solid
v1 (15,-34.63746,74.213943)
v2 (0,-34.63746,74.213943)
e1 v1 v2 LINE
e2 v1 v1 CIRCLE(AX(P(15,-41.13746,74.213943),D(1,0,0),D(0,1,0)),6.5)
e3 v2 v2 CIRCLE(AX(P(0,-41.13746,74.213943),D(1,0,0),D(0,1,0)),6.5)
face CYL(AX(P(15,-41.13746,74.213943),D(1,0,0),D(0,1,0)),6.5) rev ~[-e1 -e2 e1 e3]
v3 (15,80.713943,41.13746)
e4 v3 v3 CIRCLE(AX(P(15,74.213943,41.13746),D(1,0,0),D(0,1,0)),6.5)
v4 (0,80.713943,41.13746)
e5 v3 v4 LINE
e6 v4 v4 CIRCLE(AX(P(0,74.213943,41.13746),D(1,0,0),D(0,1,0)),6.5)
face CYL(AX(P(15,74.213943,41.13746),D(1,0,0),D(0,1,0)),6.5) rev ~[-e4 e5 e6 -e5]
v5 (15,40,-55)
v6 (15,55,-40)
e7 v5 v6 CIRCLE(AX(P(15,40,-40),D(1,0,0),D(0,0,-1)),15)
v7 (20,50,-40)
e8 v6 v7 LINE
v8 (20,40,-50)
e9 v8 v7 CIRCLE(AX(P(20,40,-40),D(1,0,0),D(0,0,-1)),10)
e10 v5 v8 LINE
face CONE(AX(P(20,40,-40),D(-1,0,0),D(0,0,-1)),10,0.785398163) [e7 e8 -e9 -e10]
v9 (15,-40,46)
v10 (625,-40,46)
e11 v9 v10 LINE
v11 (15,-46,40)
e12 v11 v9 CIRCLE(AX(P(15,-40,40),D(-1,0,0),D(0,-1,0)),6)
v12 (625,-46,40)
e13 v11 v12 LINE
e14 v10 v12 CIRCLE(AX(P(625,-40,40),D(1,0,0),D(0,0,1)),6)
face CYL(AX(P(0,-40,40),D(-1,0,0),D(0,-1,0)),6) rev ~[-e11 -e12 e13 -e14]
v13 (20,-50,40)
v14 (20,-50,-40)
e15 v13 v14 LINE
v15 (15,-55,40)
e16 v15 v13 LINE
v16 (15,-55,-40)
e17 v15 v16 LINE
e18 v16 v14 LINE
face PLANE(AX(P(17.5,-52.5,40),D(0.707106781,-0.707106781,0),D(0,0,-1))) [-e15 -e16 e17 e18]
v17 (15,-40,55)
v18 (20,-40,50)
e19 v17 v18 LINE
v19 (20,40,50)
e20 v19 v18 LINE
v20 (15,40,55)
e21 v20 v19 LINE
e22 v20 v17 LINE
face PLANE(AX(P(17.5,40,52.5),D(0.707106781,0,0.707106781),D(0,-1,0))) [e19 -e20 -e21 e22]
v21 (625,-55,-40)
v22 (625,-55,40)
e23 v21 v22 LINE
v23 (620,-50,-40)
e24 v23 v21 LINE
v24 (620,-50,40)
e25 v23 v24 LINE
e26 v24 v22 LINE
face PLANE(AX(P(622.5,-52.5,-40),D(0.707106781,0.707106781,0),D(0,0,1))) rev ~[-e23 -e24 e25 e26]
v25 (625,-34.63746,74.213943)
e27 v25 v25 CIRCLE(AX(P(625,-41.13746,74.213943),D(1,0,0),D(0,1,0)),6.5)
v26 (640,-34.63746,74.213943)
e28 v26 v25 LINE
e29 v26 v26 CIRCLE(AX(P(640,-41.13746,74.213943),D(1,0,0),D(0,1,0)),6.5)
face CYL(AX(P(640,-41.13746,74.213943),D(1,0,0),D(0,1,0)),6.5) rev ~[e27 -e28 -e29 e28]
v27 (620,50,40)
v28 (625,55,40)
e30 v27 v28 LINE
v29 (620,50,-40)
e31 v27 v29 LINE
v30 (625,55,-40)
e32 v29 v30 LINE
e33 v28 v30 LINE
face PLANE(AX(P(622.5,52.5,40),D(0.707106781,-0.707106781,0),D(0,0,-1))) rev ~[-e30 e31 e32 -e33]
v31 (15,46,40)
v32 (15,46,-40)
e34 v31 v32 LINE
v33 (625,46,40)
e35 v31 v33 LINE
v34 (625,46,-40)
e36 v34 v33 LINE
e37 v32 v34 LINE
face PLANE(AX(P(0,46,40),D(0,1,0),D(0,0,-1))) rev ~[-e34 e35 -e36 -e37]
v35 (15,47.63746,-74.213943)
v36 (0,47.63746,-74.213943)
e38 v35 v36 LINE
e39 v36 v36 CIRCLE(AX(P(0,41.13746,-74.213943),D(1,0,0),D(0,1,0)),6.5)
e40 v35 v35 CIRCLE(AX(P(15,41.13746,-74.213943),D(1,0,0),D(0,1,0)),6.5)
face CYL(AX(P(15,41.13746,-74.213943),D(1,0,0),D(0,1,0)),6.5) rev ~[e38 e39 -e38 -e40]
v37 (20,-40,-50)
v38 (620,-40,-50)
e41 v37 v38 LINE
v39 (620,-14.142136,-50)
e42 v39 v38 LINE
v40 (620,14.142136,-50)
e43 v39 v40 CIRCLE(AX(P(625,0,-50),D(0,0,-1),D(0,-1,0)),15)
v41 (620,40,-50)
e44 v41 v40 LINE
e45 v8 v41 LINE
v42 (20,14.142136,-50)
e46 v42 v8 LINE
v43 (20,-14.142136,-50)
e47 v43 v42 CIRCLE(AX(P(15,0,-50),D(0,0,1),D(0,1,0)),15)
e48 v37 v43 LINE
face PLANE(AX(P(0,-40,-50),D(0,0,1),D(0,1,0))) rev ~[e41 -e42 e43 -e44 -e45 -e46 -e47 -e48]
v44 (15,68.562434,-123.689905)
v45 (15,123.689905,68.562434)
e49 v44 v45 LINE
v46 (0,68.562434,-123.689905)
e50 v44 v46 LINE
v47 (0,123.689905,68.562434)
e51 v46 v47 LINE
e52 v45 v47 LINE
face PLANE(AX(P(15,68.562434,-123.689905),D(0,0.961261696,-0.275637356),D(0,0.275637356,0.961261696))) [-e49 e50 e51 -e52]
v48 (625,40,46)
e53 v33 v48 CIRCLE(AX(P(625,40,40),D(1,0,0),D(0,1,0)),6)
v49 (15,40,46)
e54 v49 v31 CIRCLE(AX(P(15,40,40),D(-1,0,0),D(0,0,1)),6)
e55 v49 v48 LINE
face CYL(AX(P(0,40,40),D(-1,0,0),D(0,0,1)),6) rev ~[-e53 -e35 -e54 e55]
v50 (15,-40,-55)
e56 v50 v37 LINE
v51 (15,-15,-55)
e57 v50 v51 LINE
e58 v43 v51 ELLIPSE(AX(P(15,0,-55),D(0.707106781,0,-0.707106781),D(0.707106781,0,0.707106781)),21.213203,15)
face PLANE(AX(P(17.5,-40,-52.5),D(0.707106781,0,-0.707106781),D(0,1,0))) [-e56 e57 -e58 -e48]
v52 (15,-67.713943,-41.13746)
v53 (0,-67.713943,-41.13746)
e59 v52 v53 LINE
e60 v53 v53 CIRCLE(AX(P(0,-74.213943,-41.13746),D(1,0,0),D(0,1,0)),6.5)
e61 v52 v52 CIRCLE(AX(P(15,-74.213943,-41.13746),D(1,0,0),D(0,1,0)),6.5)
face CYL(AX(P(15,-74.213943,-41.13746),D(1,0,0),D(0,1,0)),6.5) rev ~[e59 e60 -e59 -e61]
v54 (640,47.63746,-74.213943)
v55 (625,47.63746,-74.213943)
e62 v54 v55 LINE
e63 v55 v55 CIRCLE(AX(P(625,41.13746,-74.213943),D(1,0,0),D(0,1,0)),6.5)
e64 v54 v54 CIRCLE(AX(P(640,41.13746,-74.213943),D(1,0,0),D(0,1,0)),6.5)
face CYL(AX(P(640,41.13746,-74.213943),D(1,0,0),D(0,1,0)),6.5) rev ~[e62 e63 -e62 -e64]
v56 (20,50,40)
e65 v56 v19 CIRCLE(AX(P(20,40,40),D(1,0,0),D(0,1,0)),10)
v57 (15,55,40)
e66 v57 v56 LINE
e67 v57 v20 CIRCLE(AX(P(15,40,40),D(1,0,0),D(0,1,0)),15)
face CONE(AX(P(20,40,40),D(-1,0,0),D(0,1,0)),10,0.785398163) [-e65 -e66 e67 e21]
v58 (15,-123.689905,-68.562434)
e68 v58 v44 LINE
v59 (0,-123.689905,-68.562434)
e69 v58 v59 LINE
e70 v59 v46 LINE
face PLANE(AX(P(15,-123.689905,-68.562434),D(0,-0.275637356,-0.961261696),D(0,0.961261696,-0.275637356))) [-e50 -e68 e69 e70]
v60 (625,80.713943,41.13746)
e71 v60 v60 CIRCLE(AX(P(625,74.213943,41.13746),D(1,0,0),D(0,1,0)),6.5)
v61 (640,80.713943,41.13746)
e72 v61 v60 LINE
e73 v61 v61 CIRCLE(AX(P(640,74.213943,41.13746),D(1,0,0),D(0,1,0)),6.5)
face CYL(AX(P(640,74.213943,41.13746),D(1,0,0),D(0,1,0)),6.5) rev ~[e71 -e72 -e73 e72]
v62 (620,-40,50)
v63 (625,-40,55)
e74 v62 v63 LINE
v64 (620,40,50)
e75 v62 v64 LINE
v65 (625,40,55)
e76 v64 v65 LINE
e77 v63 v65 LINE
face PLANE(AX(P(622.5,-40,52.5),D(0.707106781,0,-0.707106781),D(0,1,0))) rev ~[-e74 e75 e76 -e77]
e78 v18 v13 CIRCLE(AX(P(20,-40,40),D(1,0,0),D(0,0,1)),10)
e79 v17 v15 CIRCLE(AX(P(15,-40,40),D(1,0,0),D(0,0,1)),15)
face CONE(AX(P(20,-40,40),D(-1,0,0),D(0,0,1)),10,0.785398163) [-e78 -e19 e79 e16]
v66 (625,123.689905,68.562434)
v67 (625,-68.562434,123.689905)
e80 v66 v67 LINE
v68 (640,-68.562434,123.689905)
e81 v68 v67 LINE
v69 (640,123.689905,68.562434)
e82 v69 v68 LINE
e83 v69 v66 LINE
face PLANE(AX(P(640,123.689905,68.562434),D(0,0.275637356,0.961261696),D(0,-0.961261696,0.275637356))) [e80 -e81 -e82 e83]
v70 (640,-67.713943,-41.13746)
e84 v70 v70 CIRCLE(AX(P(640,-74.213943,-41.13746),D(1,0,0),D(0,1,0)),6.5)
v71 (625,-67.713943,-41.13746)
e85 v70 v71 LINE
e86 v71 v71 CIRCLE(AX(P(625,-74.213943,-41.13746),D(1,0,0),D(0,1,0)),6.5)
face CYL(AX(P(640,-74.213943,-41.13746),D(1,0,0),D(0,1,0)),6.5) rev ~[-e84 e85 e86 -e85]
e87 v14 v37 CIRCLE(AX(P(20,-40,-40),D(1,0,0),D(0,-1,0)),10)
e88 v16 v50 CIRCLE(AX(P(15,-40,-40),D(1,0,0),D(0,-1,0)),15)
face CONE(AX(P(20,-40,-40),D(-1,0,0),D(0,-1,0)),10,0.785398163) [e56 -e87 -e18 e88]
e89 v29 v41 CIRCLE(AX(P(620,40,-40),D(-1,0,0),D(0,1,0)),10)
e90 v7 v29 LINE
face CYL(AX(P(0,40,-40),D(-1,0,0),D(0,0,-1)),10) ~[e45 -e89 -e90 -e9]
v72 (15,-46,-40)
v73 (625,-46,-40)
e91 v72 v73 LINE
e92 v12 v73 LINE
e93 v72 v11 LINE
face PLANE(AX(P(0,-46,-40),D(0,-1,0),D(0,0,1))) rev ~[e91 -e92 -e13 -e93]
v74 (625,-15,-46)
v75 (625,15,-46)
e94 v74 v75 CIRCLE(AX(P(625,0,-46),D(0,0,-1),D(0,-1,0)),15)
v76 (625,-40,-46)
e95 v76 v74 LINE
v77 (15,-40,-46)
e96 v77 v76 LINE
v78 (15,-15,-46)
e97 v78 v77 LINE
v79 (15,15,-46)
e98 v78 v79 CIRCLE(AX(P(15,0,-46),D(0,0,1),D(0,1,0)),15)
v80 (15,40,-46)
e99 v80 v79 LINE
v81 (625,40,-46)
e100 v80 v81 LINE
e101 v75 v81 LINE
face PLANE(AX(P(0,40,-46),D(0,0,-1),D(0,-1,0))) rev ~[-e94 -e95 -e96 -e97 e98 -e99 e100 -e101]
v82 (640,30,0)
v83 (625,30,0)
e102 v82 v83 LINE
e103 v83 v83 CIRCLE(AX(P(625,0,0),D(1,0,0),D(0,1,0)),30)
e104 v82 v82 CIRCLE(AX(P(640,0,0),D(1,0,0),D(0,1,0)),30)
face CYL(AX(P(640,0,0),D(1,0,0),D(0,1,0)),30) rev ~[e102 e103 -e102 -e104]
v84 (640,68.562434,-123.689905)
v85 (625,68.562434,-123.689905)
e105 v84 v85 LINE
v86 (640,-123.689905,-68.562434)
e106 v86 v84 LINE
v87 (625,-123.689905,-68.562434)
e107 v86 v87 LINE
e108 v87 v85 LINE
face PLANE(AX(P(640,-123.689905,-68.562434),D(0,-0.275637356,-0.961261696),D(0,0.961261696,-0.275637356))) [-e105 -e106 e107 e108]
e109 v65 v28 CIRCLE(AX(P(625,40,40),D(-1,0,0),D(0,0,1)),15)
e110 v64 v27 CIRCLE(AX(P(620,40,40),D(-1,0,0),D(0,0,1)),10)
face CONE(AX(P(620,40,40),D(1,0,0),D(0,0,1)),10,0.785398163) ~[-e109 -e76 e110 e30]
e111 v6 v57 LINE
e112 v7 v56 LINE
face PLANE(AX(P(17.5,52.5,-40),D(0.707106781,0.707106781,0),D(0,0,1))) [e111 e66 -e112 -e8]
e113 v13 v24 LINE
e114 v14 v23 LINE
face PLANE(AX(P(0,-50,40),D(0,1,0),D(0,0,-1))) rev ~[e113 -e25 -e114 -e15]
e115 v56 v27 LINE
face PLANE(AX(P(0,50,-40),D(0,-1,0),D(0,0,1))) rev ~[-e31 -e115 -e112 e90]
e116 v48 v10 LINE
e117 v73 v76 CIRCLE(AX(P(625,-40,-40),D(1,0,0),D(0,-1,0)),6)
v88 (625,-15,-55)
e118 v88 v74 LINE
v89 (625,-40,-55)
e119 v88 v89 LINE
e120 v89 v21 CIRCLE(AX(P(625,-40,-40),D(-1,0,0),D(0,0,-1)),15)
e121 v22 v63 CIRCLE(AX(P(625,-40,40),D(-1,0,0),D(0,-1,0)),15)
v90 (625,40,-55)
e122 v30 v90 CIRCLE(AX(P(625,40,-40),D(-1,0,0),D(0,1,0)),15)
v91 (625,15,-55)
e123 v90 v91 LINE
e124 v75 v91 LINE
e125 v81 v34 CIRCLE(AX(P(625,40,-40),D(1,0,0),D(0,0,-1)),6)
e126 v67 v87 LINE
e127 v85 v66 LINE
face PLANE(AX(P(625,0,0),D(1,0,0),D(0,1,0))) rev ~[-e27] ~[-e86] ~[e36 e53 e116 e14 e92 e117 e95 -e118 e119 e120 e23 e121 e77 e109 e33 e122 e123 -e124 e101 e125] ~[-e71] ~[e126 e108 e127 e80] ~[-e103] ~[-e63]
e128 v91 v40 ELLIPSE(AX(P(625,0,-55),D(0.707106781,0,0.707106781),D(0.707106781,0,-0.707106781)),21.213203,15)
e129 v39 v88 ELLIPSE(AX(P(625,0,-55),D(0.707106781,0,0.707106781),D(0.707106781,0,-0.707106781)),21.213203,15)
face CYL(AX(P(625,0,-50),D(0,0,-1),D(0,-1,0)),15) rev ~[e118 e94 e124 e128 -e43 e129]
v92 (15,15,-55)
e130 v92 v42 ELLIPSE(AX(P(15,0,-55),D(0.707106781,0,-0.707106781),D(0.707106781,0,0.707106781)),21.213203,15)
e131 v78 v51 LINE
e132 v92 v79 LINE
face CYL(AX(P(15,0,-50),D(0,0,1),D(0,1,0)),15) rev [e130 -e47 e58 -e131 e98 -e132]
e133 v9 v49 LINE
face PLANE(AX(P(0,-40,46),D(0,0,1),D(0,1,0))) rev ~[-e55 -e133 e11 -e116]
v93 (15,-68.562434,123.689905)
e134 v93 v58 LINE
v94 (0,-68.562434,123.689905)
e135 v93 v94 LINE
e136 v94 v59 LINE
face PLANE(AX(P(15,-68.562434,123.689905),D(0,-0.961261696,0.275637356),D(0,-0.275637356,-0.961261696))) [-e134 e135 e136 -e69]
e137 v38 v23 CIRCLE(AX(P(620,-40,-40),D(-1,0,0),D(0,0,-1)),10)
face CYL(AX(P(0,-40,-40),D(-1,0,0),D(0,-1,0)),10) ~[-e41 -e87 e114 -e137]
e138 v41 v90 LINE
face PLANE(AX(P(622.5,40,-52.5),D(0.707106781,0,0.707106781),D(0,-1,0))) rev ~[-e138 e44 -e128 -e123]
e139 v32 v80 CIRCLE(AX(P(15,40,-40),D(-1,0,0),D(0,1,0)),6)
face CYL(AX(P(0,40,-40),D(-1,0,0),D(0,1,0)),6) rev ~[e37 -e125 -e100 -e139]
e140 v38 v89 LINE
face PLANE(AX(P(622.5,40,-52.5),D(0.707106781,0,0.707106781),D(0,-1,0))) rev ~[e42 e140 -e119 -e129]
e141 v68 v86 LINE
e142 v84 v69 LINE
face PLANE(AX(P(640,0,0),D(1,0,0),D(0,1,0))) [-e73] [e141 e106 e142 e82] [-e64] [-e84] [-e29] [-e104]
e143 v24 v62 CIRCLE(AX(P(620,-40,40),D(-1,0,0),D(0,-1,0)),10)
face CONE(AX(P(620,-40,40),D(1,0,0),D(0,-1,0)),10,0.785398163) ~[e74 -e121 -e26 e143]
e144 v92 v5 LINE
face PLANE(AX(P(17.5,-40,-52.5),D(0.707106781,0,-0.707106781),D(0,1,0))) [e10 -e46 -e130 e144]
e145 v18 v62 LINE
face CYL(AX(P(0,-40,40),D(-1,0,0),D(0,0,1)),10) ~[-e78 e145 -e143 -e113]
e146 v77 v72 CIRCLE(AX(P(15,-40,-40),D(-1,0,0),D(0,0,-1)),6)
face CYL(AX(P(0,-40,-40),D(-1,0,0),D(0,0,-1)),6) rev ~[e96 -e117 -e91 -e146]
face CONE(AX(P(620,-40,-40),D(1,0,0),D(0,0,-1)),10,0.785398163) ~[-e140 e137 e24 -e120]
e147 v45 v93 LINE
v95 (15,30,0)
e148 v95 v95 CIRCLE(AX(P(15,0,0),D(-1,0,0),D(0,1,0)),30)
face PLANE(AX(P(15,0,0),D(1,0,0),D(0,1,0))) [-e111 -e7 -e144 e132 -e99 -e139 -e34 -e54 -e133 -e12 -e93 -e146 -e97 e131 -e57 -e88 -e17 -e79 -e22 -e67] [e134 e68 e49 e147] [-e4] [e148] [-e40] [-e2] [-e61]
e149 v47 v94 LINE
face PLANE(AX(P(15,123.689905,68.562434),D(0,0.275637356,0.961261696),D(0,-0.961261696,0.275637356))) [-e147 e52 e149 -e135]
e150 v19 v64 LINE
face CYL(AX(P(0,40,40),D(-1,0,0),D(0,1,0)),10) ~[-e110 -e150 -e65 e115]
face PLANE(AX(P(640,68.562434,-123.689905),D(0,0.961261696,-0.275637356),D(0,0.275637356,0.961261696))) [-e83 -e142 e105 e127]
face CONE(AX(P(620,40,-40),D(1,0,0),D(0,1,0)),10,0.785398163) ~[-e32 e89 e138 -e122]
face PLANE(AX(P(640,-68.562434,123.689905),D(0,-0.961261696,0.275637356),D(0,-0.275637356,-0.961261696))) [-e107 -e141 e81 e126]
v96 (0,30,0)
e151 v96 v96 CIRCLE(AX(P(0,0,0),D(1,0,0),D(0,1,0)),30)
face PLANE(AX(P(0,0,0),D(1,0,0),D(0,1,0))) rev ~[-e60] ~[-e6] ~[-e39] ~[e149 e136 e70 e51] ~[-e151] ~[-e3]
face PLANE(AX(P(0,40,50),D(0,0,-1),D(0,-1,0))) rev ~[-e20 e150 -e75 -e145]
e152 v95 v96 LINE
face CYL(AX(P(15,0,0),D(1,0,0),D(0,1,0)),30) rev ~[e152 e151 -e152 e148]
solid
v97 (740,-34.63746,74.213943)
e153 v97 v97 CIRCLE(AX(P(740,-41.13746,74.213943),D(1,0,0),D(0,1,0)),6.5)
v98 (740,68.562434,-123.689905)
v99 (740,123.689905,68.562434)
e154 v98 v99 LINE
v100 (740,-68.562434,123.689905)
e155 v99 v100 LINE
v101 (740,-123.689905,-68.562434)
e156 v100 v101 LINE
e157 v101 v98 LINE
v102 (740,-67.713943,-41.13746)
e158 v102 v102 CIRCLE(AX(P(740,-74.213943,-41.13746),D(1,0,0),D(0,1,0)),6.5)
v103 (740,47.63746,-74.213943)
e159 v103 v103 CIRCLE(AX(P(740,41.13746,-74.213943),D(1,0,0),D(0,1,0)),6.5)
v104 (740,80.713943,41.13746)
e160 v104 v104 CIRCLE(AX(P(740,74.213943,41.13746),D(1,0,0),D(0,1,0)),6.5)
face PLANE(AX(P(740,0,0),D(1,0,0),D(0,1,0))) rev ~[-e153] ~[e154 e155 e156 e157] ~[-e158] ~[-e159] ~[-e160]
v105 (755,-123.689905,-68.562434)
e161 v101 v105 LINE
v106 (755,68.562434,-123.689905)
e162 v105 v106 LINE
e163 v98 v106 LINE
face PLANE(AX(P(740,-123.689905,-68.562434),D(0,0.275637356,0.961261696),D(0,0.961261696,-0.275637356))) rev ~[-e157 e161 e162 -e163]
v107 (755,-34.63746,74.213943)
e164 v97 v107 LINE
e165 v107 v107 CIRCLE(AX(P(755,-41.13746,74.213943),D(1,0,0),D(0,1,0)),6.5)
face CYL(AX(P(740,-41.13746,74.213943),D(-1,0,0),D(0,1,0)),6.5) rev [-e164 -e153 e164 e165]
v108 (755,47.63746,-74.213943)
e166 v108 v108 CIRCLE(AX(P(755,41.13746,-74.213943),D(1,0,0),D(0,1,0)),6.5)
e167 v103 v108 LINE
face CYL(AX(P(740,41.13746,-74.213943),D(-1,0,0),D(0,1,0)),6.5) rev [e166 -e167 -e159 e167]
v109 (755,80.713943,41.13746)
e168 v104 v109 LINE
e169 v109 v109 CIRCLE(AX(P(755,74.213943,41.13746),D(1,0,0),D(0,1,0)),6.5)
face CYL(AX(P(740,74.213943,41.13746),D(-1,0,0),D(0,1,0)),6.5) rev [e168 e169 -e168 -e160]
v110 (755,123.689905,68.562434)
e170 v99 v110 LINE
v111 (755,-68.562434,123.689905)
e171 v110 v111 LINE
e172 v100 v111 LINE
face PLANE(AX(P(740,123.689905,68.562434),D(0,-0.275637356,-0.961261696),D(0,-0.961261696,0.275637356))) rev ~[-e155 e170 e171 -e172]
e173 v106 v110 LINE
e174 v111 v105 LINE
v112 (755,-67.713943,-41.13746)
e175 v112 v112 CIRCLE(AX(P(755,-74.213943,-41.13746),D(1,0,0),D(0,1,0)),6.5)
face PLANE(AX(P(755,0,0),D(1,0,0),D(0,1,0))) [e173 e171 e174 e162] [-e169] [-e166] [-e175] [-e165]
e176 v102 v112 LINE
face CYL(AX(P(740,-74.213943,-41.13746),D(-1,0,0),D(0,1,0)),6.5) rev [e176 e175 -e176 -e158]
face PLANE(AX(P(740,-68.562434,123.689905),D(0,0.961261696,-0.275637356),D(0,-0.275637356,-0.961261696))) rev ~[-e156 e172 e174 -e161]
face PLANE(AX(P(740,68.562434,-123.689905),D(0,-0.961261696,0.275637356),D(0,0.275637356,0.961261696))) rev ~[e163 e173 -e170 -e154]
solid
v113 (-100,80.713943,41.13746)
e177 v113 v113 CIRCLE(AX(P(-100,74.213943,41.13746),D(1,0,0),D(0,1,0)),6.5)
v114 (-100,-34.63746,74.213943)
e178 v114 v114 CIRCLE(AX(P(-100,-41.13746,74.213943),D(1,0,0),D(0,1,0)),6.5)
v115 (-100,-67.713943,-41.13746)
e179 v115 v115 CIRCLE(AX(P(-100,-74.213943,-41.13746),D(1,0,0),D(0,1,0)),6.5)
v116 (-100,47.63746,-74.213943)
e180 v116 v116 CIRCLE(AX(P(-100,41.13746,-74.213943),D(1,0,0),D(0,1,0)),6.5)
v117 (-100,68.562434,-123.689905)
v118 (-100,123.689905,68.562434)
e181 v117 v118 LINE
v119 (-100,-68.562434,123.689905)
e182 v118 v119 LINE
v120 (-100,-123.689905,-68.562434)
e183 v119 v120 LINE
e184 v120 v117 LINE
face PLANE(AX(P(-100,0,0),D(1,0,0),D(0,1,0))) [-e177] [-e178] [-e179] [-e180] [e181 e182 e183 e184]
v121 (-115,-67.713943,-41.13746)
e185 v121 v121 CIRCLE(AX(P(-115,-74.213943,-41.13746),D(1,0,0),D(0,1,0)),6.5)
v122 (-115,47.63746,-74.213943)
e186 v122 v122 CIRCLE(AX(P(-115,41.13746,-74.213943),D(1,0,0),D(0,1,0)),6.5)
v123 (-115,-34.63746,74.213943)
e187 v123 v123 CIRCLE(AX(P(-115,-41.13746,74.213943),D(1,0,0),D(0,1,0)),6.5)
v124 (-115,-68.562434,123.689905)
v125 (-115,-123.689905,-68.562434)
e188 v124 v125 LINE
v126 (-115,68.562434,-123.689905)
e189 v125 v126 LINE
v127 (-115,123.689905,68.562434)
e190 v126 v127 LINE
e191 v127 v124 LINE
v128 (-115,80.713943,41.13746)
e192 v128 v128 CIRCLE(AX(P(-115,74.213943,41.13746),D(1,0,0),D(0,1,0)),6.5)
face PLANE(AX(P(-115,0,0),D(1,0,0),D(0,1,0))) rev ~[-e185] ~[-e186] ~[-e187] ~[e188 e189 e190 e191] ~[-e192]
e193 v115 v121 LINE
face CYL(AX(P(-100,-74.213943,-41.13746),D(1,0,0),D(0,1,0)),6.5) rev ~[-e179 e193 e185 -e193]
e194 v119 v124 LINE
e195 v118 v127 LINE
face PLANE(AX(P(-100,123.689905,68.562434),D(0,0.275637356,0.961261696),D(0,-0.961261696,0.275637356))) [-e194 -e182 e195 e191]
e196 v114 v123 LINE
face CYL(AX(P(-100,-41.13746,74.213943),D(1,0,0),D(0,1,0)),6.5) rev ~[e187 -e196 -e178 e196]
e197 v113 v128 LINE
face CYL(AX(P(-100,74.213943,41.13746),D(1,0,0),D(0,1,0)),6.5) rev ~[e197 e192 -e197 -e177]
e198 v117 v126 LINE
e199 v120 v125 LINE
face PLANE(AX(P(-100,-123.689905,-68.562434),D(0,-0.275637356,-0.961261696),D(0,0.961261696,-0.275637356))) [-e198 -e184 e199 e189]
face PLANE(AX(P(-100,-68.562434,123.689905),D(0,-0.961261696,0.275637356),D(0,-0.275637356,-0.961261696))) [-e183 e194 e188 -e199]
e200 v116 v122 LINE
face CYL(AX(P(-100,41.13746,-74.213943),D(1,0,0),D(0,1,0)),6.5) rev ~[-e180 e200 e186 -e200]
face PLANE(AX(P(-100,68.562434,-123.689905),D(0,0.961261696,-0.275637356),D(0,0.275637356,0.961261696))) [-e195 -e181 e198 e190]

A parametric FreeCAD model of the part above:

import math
import FreeCAD as App
import Part
import Sketcher
Q = App.Units.Quantity


def edges_at(feature, points):
    """Names of the edges that pass closest to the given points."""
    edges = feature.Shape.Edges
    near = lambda p: min(range(len(edges)), key=lambda i: edges[i].distToShape(Part.Vertex(*p))[0])
    return sorted({f"Edge{near(p) + 1}" for p in points})

doc = App.newDocument("Part")
body = doc.addObject("PartDesign::Body", "Body")

sketch1 = doc.addObject("Sketcher::SketchObject", "Sketch")
body.addObject(sketch1)
sketch1.AttachmentSupport = (doc.YZ_Plane, [""])
sketch1.MapMode = "FlatFace"
sketch1.addGeometry(Part.LineSegment(App.Vector(40, 50, 0), App.Vector(-40, 50, 0)), False)
sketch1.addGeometry(Part.ArcOfCircle(Part.Circle(App.Vector(-40, 40, 0), App.Vector(0, 0, 1), 10), math.radians(90), math.radians(180)), False)
sketch1.addGeometry(Part.LineSegment(App.Vector(-50, 40, 0), App.Vector(-50, -40, 0)), False)
sketch1.addGeometry(Part.ArcOfCircle(Part.Circle(App.Vector(-40, -40, 0), App.Vector(0, 0, 1), 10), math.radians(180), math.radians(270)), False)
sketch1.addGeometry(Part.LineSegment(App.Vector(-40, -50, 0), App.Vector(40, -50, 0)), False)
sketch1.addGeometry(Part.ArcOfCircle(Part.Circle(App.Vector(40, -40, 0), App.Vector(0, 0, 1), 10), math.radians(-90), math.radians(0)), False)
sketch1.addGeometry(Part.LineSegment(App.Vector(50, -40, 0), App.Vector(50, 40, 0)), False)
sketch1.addGeometry(Part.ArcOfCircle(Part.Circle(App.Vector(40, 40, 0), App.Vector(0, 0, 1), 10), math.radians(0), math.radians(90)), False)
sketch1.addGeometry(Part.LineSegment(App.Vector(-46, -40, 0), App.Vector(-46, 40, 0)), False)
sketch1.addGeometry(Part.ArcOfCircle(Part.Circle(App.Vector(-40, 40, 0), App.Vector(0, 0, 1), 6), math.radians(90), math.radians(180)), False)
sketch1.addGeometry(Part.LineSegment(App.Vector(-40, 46, 0), App.Vector(40, 46, 0)), False)
sketch1.addGeometry(Part.ArcOfCircle(Part.Circle(App.Vector(40, 40, 0), App.Vector(0, 0, 1), 6), math.radians(0), math.radians(90)), False)
sketch1.addGeometry(Part.LineSegment(App.Vector(46, 40, 0), App.Vector(46, -40, 0)), False)
sketch1.addGeometry(Part.ArcOfCircle(Part.Circle(App.Vector(40, -40, 0), App.Vector(0, 0, 1), 6), math.radians(-90), math.radians(0)), False)
sketch1.addGeometry(Part.LineSegment(App.Vector(40, -46, 0), App.Vector(-40, -46, 0)), False)
sketch1.addGeometry(Part.ArcOfCircle(Part.Circle(App.Vector(-40, -40, 0), App.Vector(0, 0, 1), 6), math.radians(180), math.radians(270)), False)
sketch1.addConstraint(Sketcher.Constraint("Tangent", 0, 2, 1, 1))
sketch1.addConstraint(Sketcher.Constraint("Tangent", 1, 2, 2, 1))
sketch1.addConstraint(Sketcher.Constraint("Tangent", 2, 2, 3, 1))
sketch1.addConstraint(Sketcher.Constraint("Tangent", 3, 2, 4, 1))
sketch1.addConstraint(Sketcher.Constraint("Tangent", 4, 2, 5, 1))
sketch1.addConstraint(Sketcher.Constraint("Tangent", 5, 2, 6, 1))
sketch1.addConstraint(Sketcher.Constraint("Tangent", 6, 2, 7, 1))
sketch1.addConstraint(Sketcher.Constraint("Tangent", 7, 2, 0, 1))
sketch1.addConstraint(Sketcher.Constraint("Tangent", 8, 2, 9, 2))
sketch1.addConstraint(Sketcher.Constraint("Tangent", 9, 1, 10, 1))
sketch1.addConstraint(Sketcher.Constraint("Tangent", 10, 2, 11, 2))
sketch1.addConstraint(Sketcher.Constraint("Tangent", 11, 1, 12, 1))
sketch1.addConstraint(Sketcher.Constraint("Tangent", 12, 2, 13, 2))
sketch1.addConstraint(Sketcher.Constraint("Tangent", 13, 1, 14, 1))
sketch1.addConstraint(Sketcher.Constraint("Tangent", 14, 2, 15, 2))
sketch1.addConstraint(Sketcher.Constraint("Tangent", 15, 1, 8, 1))
sketch1.addConstraint(Sketcher.Constraint("Horizontal", 0))
sketch1.addConstraint(Sketcher.Constraint("Vertical", 2))
sketch1.addConstraint(Sketcher.Constraint("Horizontal", 4))
sketch1.addConstraint(Sketcher.Constraint("Vertical", 6))
sketch1.addConstraint(Sketcher.Constraint("Vertical", 8))
sketch1.addConstraint(Sketcher.Constraint("Horizontal", 10))
sketch1.addConstraint(Sketcher.Constraint("Vertical", 12))
sketch1.addConstraint(Sketcher.Constraint("Horizontal", 14))
sketch1.addConstraint(Sketcher.Constraint("Coincident", 9, 3, 1, 3))
sketch1.addConstraint(Sketcher.Constraint("Coincident", 11, 3, 7, 3))
sketch1.addConstraint(Sketcher.Constraint("Coincident", 13, 3, 5, 3))
sketch1.addConstraint(Sketcher.Constraint("Equal", 1, 3))
sketch1.addConstraint(Sketcher.Constraint("Equal", 3, 5))
sketch1.addConstraint(Sketcher.Constraint("Equal", 5, 7))
sketch1.addConstraint(Sketcher.Constraint("Equal", 13, 15))
sketch1.addConstraint(Sketcher.Constraint("Symmetric", 1, 3, 5, 3, -1, 1))
sketch1.addConstraint(Sketcher.Constraint("Equal", 14, 2))
sketch1.addConstraint(Sketcher.Constraint("Radius", 1, Q("10 mm")))
sketch1.addConstraint(Sketcher.Constraint("Radius", 9, Q("6 mm")))
sketch1.addConstraint(Sketcher.Constraint("DistanceX", 0, 2, 0, 1, Q("80 mm")))
pad1 = doc.addObject("PartDesign::Pad", "Pad")
body.addObject(pad1)
pad1.Profile = sketch1
pad1.Length = 640

sketch2 = doc.addObject("Sketcher::SketchObject", "Sketch001")
body.addObject(sketch2)
sketch2.AttachmentSupport = (doc.YZ_Plane, [""])
sketch2.MapMode = "FlatFace"
sketch2.AttachmentOffset = App.Placement(App.Vector(0, 0, 640), App.Rotation())
sketch2.addGeometry(Part.LineSegment(App.Vector(69, -124, 0), App.Vector(124, 69, 0)), False)
sketch2.addGeometry(Part.LineSegment(App.Vector(124, 69, 0), App.Vector(-69, 124, 0)), False)
sketch2.addGeometry(Part.LineSegment(App.Vector(-69, 124, 0), App.Vector(-124, -69, 0)), False)
sketch2.addGeometry(Part.LineSegment(App.Vector(-124, -69, 0), App.Vector(69, -124, 0)), False)
sketch2.addGeometry(Part.Circle(App.Vector(-74, -41, 0), App.Vector(0, 0, 1), 6), False)
sketch2.addGeometry(Part.Circle(App.Vector(41, -74, 0), App.Vector(0, 0, 1), 6), False)
sketch2.addGeometry(Part.Circle(App.Vector(-41, 74, 0), App.Vector(0, 0, 1), 6), False)
sketch2.addGeometry(Part.ArcOfCircle(Part.Circle(App.Vector(-40, 40, 0), App.Vector(0, 0, 1), 10), math.radians(90), math.radians(180)), False)
sketch2.addGeometry(Part.LineSegment(App.Vector(-40, 50, 0), App.Vector(40, 50, 0)), False)
sketch2.addGeometry(Part.ArcOfCircle(Part.Circle(App.Vector(40, 40, 0), App.Vector(0, 0, 1), 10), math.radians(0), math.radians(90)), False)
sketch2.addGeometry(Part.LineSegment(App.Vector(50, 40, 0), App.Vector(50, -40, 0)), False)
sketch2.addGeometry(Part.ArcOfCircle(Part.Circle(App.Vector(40, -40, 0), App.Vector(0, 0, 1), 10), math.radians(-90), math.radians(0)), False)
sketch2.addGeometry(Part.LineSegment(App.Vector(40, -50, 0), App.Vector(-40, -50, 0)), False)
sketch2.addGeometry(Part.ArcOfCircle(Part.Circle(App.Vector(-40, -40, 0), App.Vector(0, 0, 1), 10), math.radians(180), math.radians(270)), False)
sketch2.addGeometry(Part.LineSegment(App.Vector(-50, -40, 0), App.Vector(-50, 40, 0)), False)
sketch2.addGeometry(Part.Circle(App.Vector(74, 41, 0), App.Vector(0, 0, 1), 6), False)
sketch2.addGeometry(Part.ArcOfCircle(Part.Circle(App.Vector(-40, 40, 0), App.Vector(0, 0, 1), 6), math.radians(90), math.radians(180)), False)
sketch2.addGeometry(Part.LineSegment(App.Vector(-46, 40, 0), App.Vector(-46, -40, 0)), False)
sketch2.addGeometry(Part.ArcOfCircle(Part.Circle(App.Vector(-40, -40, 0), App.Vector(0, 0, 1), 6), math.radians(180), math.radians(270)), False)
sketch2.addGeometry(Part.LineSegment(App.Vector(-40, -46, 0), App.Vector(40, -46, 0)), False)
sketch2.addGeometry(Part.ArcOfCircle(Part.Circle(App.Vector(40, -40, 0), App.Vector(0, 0, 1), 6), math.radians(-90), math.radians(0)), False)
sketch2.addGeometry(Part.LineSegment(App.Vector(46, -40, 0), App.Vector(46, 40, 0)), False)
sketch2.addGeometry(Part.ArcOfCircle(Part.Circle(App.Vector(40, 40, 0), App.Vector(0, 0, 1), 6), math.radians(0), math.radians(90)), False)
sketch2.addGeometry(Part.LineSegment(App.Vector(40, 46, 0), App.Vector(-40, 46, 0)), False)
sketch2.addGeometry(Part.Circle(App.Vector(0, 0, 0), App.Vector(0, 0, 1), 30), False)
sketch2.addConstraint(Sketcher.Constraint("Coincident", 0, 2, 1, 1))
sketch2.addConstraint(Sketcher.Constraint("Coincident", 1, 2, 2, 1))
sketch2.addConstraint(Sketcher.Constraint("Coincident", 2, 2, 3, 1))
sketch2.addConstraint(Sketcher.Constraint("Coincident", 3, 2, 0, 1))
sketch2.addConstraint(Sketcher.Constraint("Tangent", 7, 1, 8, 1))
sketch2.addConstraint(Sketcher.Constraint("Tangent", 8, 2, 9, 2))
sketch2.addConstraint(Sketcher.Constraint("Tangent", 9, 1, 10, 1))
sketch2.addConstraint(Sketcher.Constraint("Tangent", 10, 2, 11, 2))
sketch2.addConstraint(Sketcher.Constraint("Tangent", 11, 1, 12, 1))
sketch2.addConstraint(Sketcher.Constraint("Tangent", 12, 2, 13, 2))
sketch2.addConstraint(Sketcher.Constraint("Tangent", 13, 1, 14, 1))
sketch2.addConstraint(Sketcher.Constraint("Tangent", 14, 2, 7, 2))
sketch2.addConstraint(Sketcher.Constraint("Tangent", 16, 2, 17, 1))
sketch2.addConstraint(Sketcher.Constraint("Tangent", 17, 2, 18, 1))
sketch2.addConstraint(Sketcher.Constraint("Tangent", 18, 2, 19, 1))
sketch2.addConstraint(Sketcher.Constraint("Tangent", 19, 2, 20, 1))
sketch2.addConstraint(Sketcher.Constraint("Tangent", 20, 2, 21, 1))
sketch2.addConstraint(Sketcher.Constraint("Tangent", 21, 2, 22, 1))
sketch2.addConstraint(Sketcher.Constraint("Tangent", 22, 2, 23, 1))
sketch2.addConstraint(Sketcher.Constraint("Tangent", 23, 2, 16, 1))
sketch2.addConstraint(Sketcher.Constraint("Horizontal", 8))
sketch2.addConstraint(Sketcher.Constraint("Vertical", 10))
sketch2.addConstraint(Sketcher.Constraint("Horizontal", 12))
sketch2.addConstraint(Sketcher.Constraint("Vertical", 14))
sketch2.addConstraint(Sketcher.Constraint("Vertical", 17))
sketch2.addConstraint(Sketcher.Constraint("Horizontal", 19))
sketch2.addConstraint(Sketcher.Constraint("Vertical", 21))
sketch2.addConstraint(Sketcher.Constraint("Horizontal", 23))
sketch2.addConstraint(Sketcher.Constraint("Coincident", 24, 3, -1, 1))
sketch2.addConstraint(Sketcher.Constraint("Coincident", 16, 3, 7, 3))
sketch2.addConstraint(Sketcher.Constraint("Coincident", 18, 3, 13, 3))
sketch2.addConstraint(Sketcher.Constraint("Coincident", 20, 3, 11, 3))
sketch2.addConstraint(Sketcher.Constraint("Equal", 4, 5))
sketch2.addConstraint(Sketcher.Constraint("Equal", 5, 6))
sketch2.addConstraint(Sketcher.Constraint("Equal", 7, 9))
sketch2.addConstraint(Sketcher.Constraint("Equal", 9, 11))
sketch2.addConstraint(Sketcher.Constraint("Equal", 11, 13))
sketch2.addConstraint(Sketcher.Constraint("Equal", 6, 15))
sketch2.addConstraint(Sketcher.Constraint("Equal", 20, 22))
sketch2.addConstraint(Sketcher.Constraint("Symmetric", 5, 3, 6, 3, -1, 1))
sketch2.addConstraint(Sketcher.Constraint("Symmetric", 7, 3, 11, 3, -1, 1))
sketch2.addConstraint(Sketcher.Constraint("Symmetric", 4, 3, 15, 3, -1, 1))
sketch2.addConstraint(Sketcher.Constraint("Symmetric", 0, 2, 2, 2, -1, 1))
sketch2.addConstraint(Sketcher.Constraint("Symmetric", 1, 2, 3, 2, -1, 1))
sketch2.addConstraint(Sketcher.Constraint("Perpendicular", 0, 1))
sketch2.addConstraint(Sketcher.Constraint("Equal", 23, 10))
sketch2.addConstraint(Sketcher.Constraint("Equal", 0, 1))
sketch2.addConstraint(Sketcher.Constraint("Diameter", 4, Q("13 mm")))
sketch2.addConstraint(Sketcher.Constraint("Diameter", 24, Q("60 mm")))
sketch2.addConstraint(Sketcher.Constraint("Radius", 7, Q("10 mm")))
sketch2.addConstraint(Sketcher.Constraint("Radius", 16, Q("6 mm")))
sketch2.addConstraint(Sketcher.Constraint("DistanceX", 8, 1, 8, 2, Q("80 mm")))
sketch2.addConstraint(Sketcher.Constraint("Angle", 0, Q("74 deg")))
sketch2.addConstraint(Sketcher.Constraint("Distance", 0, Q("200 mm")))
sketch2.addConstraint(Sketcher.Constraint("DistanceY", 4, 3, -1, 1, Q("41.13746 mm")))
sketch2.addConstraint(Sketcher.Constraint("DistanceX", -1, 1, 5, 3, Q("41.13746 mm")))
sketch2.addConstraint(Sketcher.Constraint("DistanceX", 4, 3, -1, 1, Q("74.213943 mm")))
sketch2.addConstraint(Sketcher.Constraint("DistanceY", 5, 3, -1, 1, Q("74.213943 mm")))
pad2 = doc.addObject("PartDesign::Pad", "Pad001")
body.addObject(pad2)
pad2.Profile = sketch2
pad2.Length = 15
pad2.Reversed = True

sketch3 = doc.addObject("Sketcher::SketchObject", "Sketch002")
body.addObject(sketch3)
sketch3.AttachmentSupport = (doc.YZ_Plane, [""])
sketch3.MapMode = "FlatFace"
sketch3.AttachmentOffset = App.Placement(App.Vector(0, 0, 15), App.Rotation())
sketch3.addGeometry(Part.LineSegment(App.Vector(69, -124, 0), App.Vector(124, 69, 0)), False)
sketch3.addGeometry(Part.LineSegment(App.Vector(124, 69, 0), App.Vector(-69, 124, 0)), False)
sketch3.addGeometry(Part.LineSegment(App.Vector(-69, 124, 0), App.Vector(-124, -69, 0)), False)
sketch3.addGeometry(Part.LineSegment(App.Vector(-124, -69, 0), App.Vector(69, -124, 0)), False)
sketch3.addGeometry(Part.Circle(App.Vector(-74, -41, 0), App.Vector(0, 0, 1), 6), False)
sketch3.addGeometry(Part.Circle(App.Vector(41, -74, 0), App.Vector(0, 0, 1), 6), False)
sketch3.addGeometry(Part.Circle(App.Vector(-41, 74, 0), App.Vector(0, 0, 1), 6), False)
sketch3.addGeometry(Part.Circle(App.Vector(0, 0, 0), App.Vector(0, 0, 1), 30), False)
sketch3.addGeometry(Part.Circle(App.Vector(74, 41, 0), App.Vector(0, 0, 1), 6), False)
sketch3.addConstraint(Sketcher.Constraint("Coincident", 0, 2, 1, 1))
sketch3.addConstraint(Sketcher.Constraint("Coincident", 1, 2, 2, 1))
sketch3.addConstraint(Sketcher.Constraint("Coincident", 2, 2, 3, 1))
sketch3.addConstraint(Sketcher.Constraint("Coincident", 3, 2, 0, 1))
sketch3.addConstraint(Sketcher.Constraint("Coincident", 7, 3, -1, 1))
sketch3.addConstraint(Sketcher.Constraint("Equal", 4, 5))
sketch3.addConstraint(Sketcher.Constraint("Equal", 5, 6))
sketch3.addConstraint(Sketcher.Constraint("Equal", 6, 8))
sketch3.addConstraint(Sketcher.Constraint("Symmetric", 5, 3, 6, 3, -1, 1))
sketch3.addConstraint(Sketcher.Constraint("Symmetric", 4, 3, 8, 3, -1, 1))
sketch3.addConstraint(Sketcher.Constraint("Symmetric", 0, 2, 2, 2, -1, 1))
sketch3.addConstraint(Sketcher.Constraint("Symmetric", 1, 2, 3, 2, -1, 1))
sketch3.addConstraint(Sketcher.Constraint("Perpendicular", 0, 1))
sketch3.addConstraint(Sketcher.Constraint("Equal", 0, 1))
sketch3.addConstraint(Sketcher.Constraint("Diameter", 4, Q("13 mm")))
sketch3.addConstraint(Sketcher.Constraint("Diameter", 7, Q("60 mm")))
sketch3.addConstraint(Sketcher.Constraint("Angle", 0, Q("74 deg")))
sketch3.addConstraint(Sketcher.Constraint("Distance", 0, Q("200 mm")))
sketch3.addConstraint(Sketcher.Constraint("DistanceY", 4, 3, -1, 1, Q("41.13746 mm")))
sketch3.addConstraint(Sketcher.Constraint("DistanceX", -1, 1, 5, 3, Q("41.13746 mm")))
sketch3.addConstraint(Sketcher.Constraint("DistanceY", 0, 2, 6, 3, Q("5.651509 mm")))
sketch3.addConstraint(Sketcher.Constraint("DistanceX", 4, 3, 0, 2, Q("197.903848 mm")))
pad3 = doc.addObject("PartDesign::Pad", "Pad002")
body.addObject(pad3)
pad3.Profile = sketch3
pad3.Length = 15
pad3.Reversed = True
doc.recompute()

chamfer = doc.addObject("PartDesign::Chamfer", "Chamfer")
body.addObject(chamfer)
chamfer.Base = (pad3, edges_at(pad3, [
    (625, 0, 50),
    (625, 47.071, 47.071),
    (625, 50, 0),
    (625, 47.071, -47.071),
    (625, -47.071, 47.071),
    (625, -50, 0),
    (625, -47.071, -47.071),
    (625, 0, -50),
    (15, -50, 0),
    (15, -47.071, 47.071),
    (15, -47.071, -47.071),
    (15, 0, -50),
    (15, 47.071, -47.071),
    (15, 50, 0),
    (15, 47.071, 47.071),
    (15, 0, 50),
]))
chamfer.Size = 5

sketch4 = doc.addObject("Sketcher::SketchObject", "Sketch003")
body.addObject(sketch4)
sketch4.AttachmentSupport = (doc.XY_Plane, [""])
sketch4.MapMode = "FlatFace"
sketch4.AttachmentOffset = App.Placement(App.Vector(0, 0, -50), App.Rotation())
sketch4.addGeometry(Part.ArcOfCircle(Part.Circle(App.Vector(15, 0, 0), App.Vector(0, 0, 1), 15), math.radians(-90), math.radians(90)), False)
sketch4.addGeometry(Part.LineSegment(App.Vector(15, -15, 0), App.Vector(15, 15, 0)), False)
sketch4.addGeometry(Part.ArcOfCircle(Part.Circle(App.Vector(625, 0, 0), App.Vector(0, 0, 1), 15), math.radians(90), math.radians(270)), False)
sketch4.addGeometry(Part.LineSegment(App.Vector(625, 15, 0), App.Vector(625, -15, 0)), False)
sketch4.addConstraint(Sketcher.Constraint("Coincident", 0, 1, 1, 1))
sketch4.addConstraint(Sketcher.Constraint("Coincident", 1, 2, 0, 2))
sketch4.addConstraint(Sketcher.Constraint("Coincident", 2, 1, 3, 1))
sketch4.addConstraint(Sketcher.Constraint("Coincident", 3, 2, 2, 2))
sketch4.addConstraint(Sketcher.Constraint("Vertical", 1))
sketch4.addConstraint(Sketcher.Constraint("Vertical", 3))
sketch4.addConstraint(Sketcher.Constraint("Equal", 0, 2))
sketch4.addConstraint(Sketcher.Constraint("PointOnObject", 0, 3, -1))
sketch4.addConstraint(Sketcher.Constraint("PointOnObject", 2, 3, -1))
sketch4.addConstraint(Sketcher.Constraint("Radius", 0, Q("15 mm")))
sketch4.addConstraint(Sketcher.Constraint("DistanceX", -1, 1, 0, 3, Q("15 mm")))
sketch4.addConstraint(Sketcher.Constraint("DistanceX", -1, 1, 2, 3, Q("625 mm")))
sketch4.addConstraint(Sketcher.Constraint("DistanceX", -1, 1, 0, 1, Q("15 mm")))
sketch4.addConstraint(Sketcher.Constraint("DistanceX", -1, 1, 2, 1, Q("625 mm")))
pocket1 = doc.addObject("PartDesign::Pocket", "Pocket")
body.addObject(pocket1)
pocket1.Profile = sketch4
pocket1.Length = 50
pocket1.Midplane = True
body2 = doc.addObject("PartDesign::Body", "Body001")

sketch5 = doc.addObject("Sketcher::SketchObject", "Sketch004")
body2.addObject(sketch5)
sketch5.AttachmentSupport = (doc.getObject("YZ_Plane001"), [""])
sketch5.MapMode = "FlatFace"
sketch5.AttachmentOffset = App.Placement(App.Vector(0, 0, 740), App.Rotation())
sketch5.addGeometry(Part.LineSegment(App.Vector(69, -124, 0), App.Vector(124, 69, 0)), False)
sketch5.addGeometry(Part.LineSegment(App.Vector(124, 69, 0), App.Vector(-69, 124, 0)), False)
sketch5.addGeometry(Part.LineSegment(App.Vector(-69, 124, 0), App.Vector(-124, -69, 0)), False)
sketch5.addGeometry(Part.LineSegment(App.Vector(-124, -69, 0), App.Vector(69, -124, 0)), False)
sketch5.addGeometry(Part.Circle(App.Vector(-74, -41, 0), App.Vector(0, 0, 1), 6), False)
sketch5.addGeometry(Part.Circle(App.Vector(41, -74, 0), App.Vector(0, 0, 1), 6), False)
sketch5.addGeometry(Part.Circle(App.Vector(-41, 74, 0), App.Vector(0, 0, 1), 6), False)
sketch5.addGeometry(Part.Circle(App.Vector(74, 41, 0), App.Vector(0, 0, 1), 6), False)
sketch5.addConstraint(Sketcher.Constraint("Coincident", 0, 2, 1, 1))
sketch5.addConstraint(Sketcher.Constraint("Coincident", 1, 2, 2, 1))
sketch5.addConstraint(Sketcher.Constraint("Coincident", 2, 2, 3, 1))
sketch5.addConstraint(Sketcher.Constraint("Coincident", 3, 2, 0, 1))
sketch5.addConstraint(Sketcher.Constraint("Equal", 4, 5))
sketch5.addConstraint(Sketcher.Constraint("Equal", 5, 6))
sketch5.addConstraint(Sketcher.Constraint("Equal", 6, 7))
sketch5.addConstraint(Sketcher.Constraint("Symmetric", 5, 3, 6, 3, -1, 1))
sketch5.addConstraint(Sketcher.Constraint("Symmetric", 4, 3, 7, 3, -1, 1))
sketch5.addConstraint(Sketcher.Constraint("Symmetric", 0, 2, 2, 2, -1, 1))
sketch5.addConstraint(Sketcher.Constraint("Symmetric", 1, 2, 3, 2, -1, 1))
sketch5.addConstraint(Sketcher.Constraint("Perpendicular", 0, 1))
sketch5.addConstraint(Sketcher.Constraint("Equal", 0, 1))
sketch5.addConstraint(Sketcher.Constraint("Diameter", 4, Q("13 mm")))
sketch5.addConstraint(Sketcher.Constraint("Angle", 0, Q("74 deg")))
sketch5.addConstraint(Sketcher.Constraint("Distance", 0, Q("200 mm")))
sketch5.addConstraint(Sketcher.Constraint("DistanceY", 4, 3, -1, 1, Q("41.13746 mm")))
sketch5.addConstraint(Sketcher.Constraint("DistanceX", -1, 1, 5, 3, Q("41.13746 mm")))
sketch5.addConstraint(Sketcher.Constraint("DistanceY", 0, 2, 6, 3, Q("5.651509 mm")))
sketch5.addConstraint(Sketcher.Constraint("DistanceX", 4, 3, 0, 2, Q("197.903848 mm")))
pad4 = doc.addObject("PartDesign::Pad", "Pad003")
body2.addObject(pad4)
pad4.Profile = sketch5
pad4.Length = 15
body3 = doc.addObject("PartDesign::Body", "Body002")

sketch6 = doc.addObject("Sketcher::SketchObject", "Sketch005")
body3.addObject(sketch6)
sketch6.AttachmentSupport = (doc.getObject("YZ_Plane002"), [""])
sketch6.MapMode = "FlatFace"
sketch6.AttachmentOffset = App.Placement(App.Vector(0, 0, -100), App.Rotation())
sketch6.addGeometry(Part.LineSegment(App.Vector(69, -124, 0), App.Vector(124, 69, 0)), False)
sketch6.addGeometry(Part.LineSegment(App.Vector(124, 69, 0), App.Vector(-69, 124, 0)), False)
sketch6.addGeometry(Part.LineSegment(App.Vector(-69, 124, 0), App.Vector(-124, -69, 0)), False)
sketch6.addGeometry(Part.LineSegment(App.Vector(-124, -69, 0), App.Vector(69, -124, 0)), False)
sketch6.addGeometry(Part.Circle(App.Vector(-74, -41, 0), App.Vector(0, 0, 1), 6), False)
sketch6.addGeometry(Part.Circle(App.Vector(41, -74, 0), App.Vector(0, 0, 1), 6), False)
sketch6.addGeometry(Part.Circle(App.Vector(-41, 74, 0), App.Vector(0, 0, 1), 6), False)
sketch6.addGeometry(Part.Circle(App.Vector(74, 41, 0), App.Vector(0, 0, 1), 6), False)
sketch6.addConstraint(Sketcher.Constraint("Coincident", 0, 2, 1, 1))
sketch6.addConstraint(Sketcher.Constraint("Coincident", 1, 2, 2, 1))
sketch6.addConstraint(Sketcher.Constraint("Coincident", 2, 2, 3, 1))
sketch6.addConstraint(Sketcher.Constraint("Coincident", 3, 2, 0, 1))
sketch6.addConstraint(Sketcher.Constraint("Equal", 4, 5))
sketch6.addConstraint(Sketcher.Constraint("Equal", 5, 6))
sketch6.addConstraint(Sketcher.Constraint("Equal", 6, 7))
sketch6.addConstraint(Sketcher.Constraint("Symmetric", 5, 3, 6, 3, -1, 1))
sketch6.addConstraint(Sketcher.Constraint("Symmetric", 4, 3, 7, 3, -1, 1))
sketch6.addConstraint(Sketcher.Constraint("Symmetric", 0, 2, 2, 2, -1, 1))
sketch6.addConstraint(Sketcher.Constraint("Symmetric", 1, 2, 3, 2, -1, 1))
sketch6.addConstraint(Sketcher.Constraint("Perpendicular", 0, 1))
sketch6.addConstraint(Sketcher.Constraint("Equal", 0, 1))
sketch6.addConstraint(Sketcher.Constraint("Diameter", 4, Q("13 mm")))
sketch6.addConstraint(Sketcher.Constraint("Angle", 0, Q("74 deg")))
sketch6.addConstraint(Sketcher.Constraint("Distance", 0, Q("200 mm")))
sketch6.addConstraint(Sketcher.Constraint("DistanceY", 4, 3, -1, 1, Q("41.13746 mm")))
sketch6.addConstraint(Sketcher.Constraint("DistanceX", -1, 1, 5, 3, Q("41.13746 mm")))
sketch6.addConstraint(Sketcher.Constraint("DistanceY", 0, 2, 6, 3, Q("5.651509 mm")))
sketch6.addConstraint(Sketcher.Constraint("DistanceX", 4, 3, 0, 2, Q("197.903848 mm")))
pad5 = doc.addObject("PartDesign::Pad", "Pad004")
body3.addObject(pad5)
pad5.Profile = sketch6
pad5.Length = 15
pad5.Reversed = True

doc.recompute()
